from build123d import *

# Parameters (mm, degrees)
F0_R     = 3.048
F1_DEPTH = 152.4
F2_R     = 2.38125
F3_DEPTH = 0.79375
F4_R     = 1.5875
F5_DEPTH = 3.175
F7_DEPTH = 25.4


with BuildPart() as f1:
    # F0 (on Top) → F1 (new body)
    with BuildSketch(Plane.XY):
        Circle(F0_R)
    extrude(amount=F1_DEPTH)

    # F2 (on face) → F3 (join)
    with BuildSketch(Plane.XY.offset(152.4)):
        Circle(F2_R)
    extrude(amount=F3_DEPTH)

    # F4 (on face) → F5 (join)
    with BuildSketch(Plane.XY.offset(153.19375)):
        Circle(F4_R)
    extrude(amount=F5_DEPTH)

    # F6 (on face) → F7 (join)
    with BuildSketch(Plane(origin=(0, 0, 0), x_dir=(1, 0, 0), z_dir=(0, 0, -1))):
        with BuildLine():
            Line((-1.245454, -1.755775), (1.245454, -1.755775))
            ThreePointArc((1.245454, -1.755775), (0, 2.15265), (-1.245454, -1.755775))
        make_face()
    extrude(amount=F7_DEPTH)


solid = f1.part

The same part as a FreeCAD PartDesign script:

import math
import FreeCAD as App
import Part
import Sketcher
Q = App.Units.Quantity

doc = App.newDocument("Part")
body = doc.addObject("PartDesign::Body", "Body")

# Sketch on XY plane
sketch1 = doc.addObject("Sketcher::SketchObject", "Sketch")
body.addObject(sketch1)
sketch1.AttachmentSupport = (doc.XY_Plane, [""])
sketch1.MapMode = "FlatFace"
sketch1.addGeometry(Part.Circle(App.Vector(0, 0, 0), App.Vector(0, 0, 1), 3), False)
sketch1.addConstraint([
    Sketcher.Constraint("Coincident", 0, 3, -1, 1),
    Sketcher.Constraint("Diameter", 0, Q("0.24 in")),
])
pad1 = doc.addObject("PartDesign::Pad", "Pad")
body.addObject(pad1)
pad1.Profile = sketch1
pad1.Length = Q("6 in")

# Sketch on XY plane
sketch2 = doc.addObject("Sketcher::SketchObject", "Sketch001")
body.addObject(sketch2)
sketch2.AttachmentSupport = (doc.XY_Plane, [""])
sketch2.MapMode = "FlatFace"
sketch2.AttachmentOffset = App.Placement(App.Vector(0, 0, 6 * 25.4), App.Rotation())
sketch2.addGeometry(Part.Circle(App.Vector(0, 0, 0), App.Vector(0, 0, 1), 2.4), False)
sketch2.addConstraint([
    Sketcher.Constraint("Coincident", 0, 3, -1, 1),
    Sketcher.Constraint("Diameter", 0, Q("0.1875 in")),
])
pad2 = doc.addObject("PartDesign::Pad", "Pad001")
body.addObject(pad2)
pad2.Profile = sketch2
pad2.Length = Q("0.03125 in")

# Sketch on XY plane
sketch3 = doc.addObject("Sketcher::SketchObject", "Sketch002")
body.addObject(sketch3)
sketch3.AttachmentSupport = (doc.XY_Plane, [""])
sketch3.MapMode = "FlatFace"
sketch3.AttachmentOffset = App.Placement(App.Vector(0, 0, 6.03125 * 25.4), App.Rotation())
sketch3.addGeometry(Part.Circle(App.Vector(0, 0, 0), App.Vector(0, 0, 1), 1.6), False)
sketch3.addConstraint([
    Sketcher.Constraint("Coincident", 0, 3, -1, 1),
    Sketcher.Constraint("Diameter", 0, Q("0.125 in")),
])
pad3 = doc.addObject("PartDesign::Pad", "Pad002")
body.addObject(pad3)
pad3.Profile = sketch3
pad3.Length = Q("0.125 in")

# Sketch on XY plane
sketch4 = doc.addObject("Sketcher::SketchObject", "Sketch003")
body.addObject(sketch4)
sketch4.AttachmentSupport = (doc.XY_Plane, [""])
sketch4.MapMode = "FlatFace"
sketch4.addGeometry([
    Part.LineSegment(App.Vector(-1.2, 1.8, 0), App.Vector(1.2, 1.8, 0)),
    Part.ArcOfCircle(Part.Circle(App.Vector(0, 0, 0), App.Vector(0, 0, 1), 2.2), math.radians(125), math.radians(415)),
], False)
sketch4.addConstraint([
    Sketcher.Constraint("Coincident", 0, 1, 1, 1),
    Sketcher.Constraint("Coincident", 1, 2, 0, 2),
    Sketcher.Constraint("Horizontal", 0),
    Sketcher.Constraint("Coincident", 1, 3, -1, 1),
    Sketcher.Constraint("Radius", 1, 2.15265),
    Sketcher.Constraint("DistanceX", 0, 1, 0, 2, 2.490908),
])
pad4 = doc.addObject("PartDesign::Pad", "Pad003")
body.addObject(pad4)
pad4.Profile = sketch4
pad4.Length = Q("1 in")
pad4.Reversed = True

doc.recompute()
